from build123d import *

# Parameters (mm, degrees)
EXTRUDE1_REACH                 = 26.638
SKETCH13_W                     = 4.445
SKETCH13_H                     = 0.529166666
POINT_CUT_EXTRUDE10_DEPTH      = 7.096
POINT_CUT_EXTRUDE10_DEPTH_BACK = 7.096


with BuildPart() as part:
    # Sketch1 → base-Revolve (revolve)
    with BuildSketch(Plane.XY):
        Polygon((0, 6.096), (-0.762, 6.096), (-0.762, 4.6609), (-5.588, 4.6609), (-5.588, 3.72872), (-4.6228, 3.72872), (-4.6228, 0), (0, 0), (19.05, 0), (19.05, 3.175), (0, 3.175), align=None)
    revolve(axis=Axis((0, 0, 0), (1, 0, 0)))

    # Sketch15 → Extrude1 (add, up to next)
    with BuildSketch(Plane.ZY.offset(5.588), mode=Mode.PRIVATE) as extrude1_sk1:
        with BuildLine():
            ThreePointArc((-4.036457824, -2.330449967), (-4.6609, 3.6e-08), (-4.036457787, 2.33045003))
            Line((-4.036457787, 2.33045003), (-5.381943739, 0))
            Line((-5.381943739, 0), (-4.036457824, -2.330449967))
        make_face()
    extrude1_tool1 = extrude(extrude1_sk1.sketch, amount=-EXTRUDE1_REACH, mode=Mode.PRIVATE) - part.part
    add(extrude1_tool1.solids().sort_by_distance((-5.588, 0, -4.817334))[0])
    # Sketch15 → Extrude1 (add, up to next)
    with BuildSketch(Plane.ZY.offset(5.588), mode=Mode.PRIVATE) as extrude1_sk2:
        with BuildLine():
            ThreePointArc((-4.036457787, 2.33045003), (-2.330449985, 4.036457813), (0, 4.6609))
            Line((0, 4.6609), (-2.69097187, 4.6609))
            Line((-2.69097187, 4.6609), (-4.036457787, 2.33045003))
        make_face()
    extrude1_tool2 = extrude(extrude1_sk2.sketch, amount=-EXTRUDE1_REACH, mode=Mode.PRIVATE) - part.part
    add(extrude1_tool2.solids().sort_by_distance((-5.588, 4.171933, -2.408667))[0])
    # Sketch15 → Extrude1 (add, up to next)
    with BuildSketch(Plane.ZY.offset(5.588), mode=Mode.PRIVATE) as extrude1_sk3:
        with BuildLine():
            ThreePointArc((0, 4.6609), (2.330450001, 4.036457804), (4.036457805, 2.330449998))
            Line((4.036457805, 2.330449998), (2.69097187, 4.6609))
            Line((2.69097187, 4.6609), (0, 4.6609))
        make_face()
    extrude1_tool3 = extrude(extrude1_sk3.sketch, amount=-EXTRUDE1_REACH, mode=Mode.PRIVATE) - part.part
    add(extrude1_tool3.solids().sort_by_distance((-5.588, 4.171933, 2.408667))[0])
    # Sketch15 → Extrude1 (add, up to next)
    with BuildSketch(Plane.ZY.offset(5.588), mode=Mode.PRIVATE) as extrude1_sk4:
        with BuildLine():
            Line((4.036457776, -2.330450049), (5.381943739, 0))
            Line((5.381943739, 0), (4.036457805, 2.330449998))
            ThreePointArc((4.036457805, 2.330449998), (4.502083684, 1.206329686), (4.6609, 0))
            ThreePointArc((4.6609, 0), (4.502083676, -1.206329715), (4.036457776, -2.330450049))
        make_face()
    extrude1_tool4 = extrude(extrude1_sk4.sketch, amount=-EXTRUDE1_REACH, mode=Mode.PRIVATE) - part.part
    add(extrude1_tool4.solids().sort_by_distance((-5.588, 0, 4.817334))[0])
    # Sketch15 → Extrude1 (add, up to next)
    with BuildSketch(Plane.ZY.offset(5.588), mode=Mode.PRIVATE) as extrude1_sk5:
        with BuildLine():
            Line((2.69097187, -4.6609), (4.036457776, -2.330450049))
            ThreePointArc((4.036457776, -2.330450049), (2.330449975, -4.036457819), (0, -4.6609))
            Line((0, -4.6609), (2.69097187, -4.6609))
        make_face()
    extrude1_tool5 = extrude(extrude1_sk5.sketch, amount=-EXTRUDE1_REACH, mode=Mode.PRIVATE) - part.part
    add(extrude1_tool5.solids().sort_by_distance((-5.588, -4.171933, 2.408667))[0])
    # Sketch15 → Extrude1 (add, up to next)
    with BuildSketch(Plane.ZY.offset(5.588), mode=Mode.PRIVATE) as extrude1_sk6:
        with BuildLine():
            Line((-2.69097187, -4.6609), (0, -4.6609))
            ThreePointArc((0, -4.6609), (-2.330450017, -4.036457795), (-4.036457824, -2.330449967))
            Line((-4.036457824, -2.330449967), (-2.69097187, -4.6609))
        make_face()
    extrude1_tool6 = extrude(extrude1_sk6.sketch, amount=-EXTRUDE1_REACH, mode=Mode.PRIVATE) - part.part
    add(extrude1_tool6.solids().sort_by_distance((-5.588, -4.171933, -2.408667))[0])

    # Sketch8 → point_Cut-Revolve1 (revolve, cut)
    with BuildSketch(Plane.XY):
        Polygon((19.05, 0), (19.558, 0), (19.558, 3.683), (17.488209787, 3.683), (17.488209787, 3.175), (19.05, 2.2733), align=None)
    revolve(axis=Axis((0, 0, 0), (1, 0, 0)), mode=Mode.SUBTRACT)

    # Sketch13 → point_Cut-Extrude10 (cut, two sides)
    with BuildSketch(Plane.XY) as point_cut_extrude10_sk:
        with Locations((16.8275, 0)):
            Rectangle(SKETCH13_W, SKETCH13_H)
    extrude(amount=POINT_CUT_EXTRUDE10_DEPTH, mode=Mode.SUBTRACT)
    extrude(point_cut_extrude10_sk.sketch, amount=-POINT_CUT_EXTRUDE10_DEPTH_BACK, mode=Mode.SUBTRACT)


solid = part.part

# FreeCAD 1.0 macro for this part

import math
import FreeCAD as App
import Part
import Sketcher
from FreeCAD import Vector
Q = App.Units.Quantity

doc = App.newDocument("Part")
body = doc.addObject("PartDesign::Body", "Body")

# Sketch on XY plane
sketch1 = body.newObject("Sketcher::SketchObject", "Sketch")
sketch1.AttachmentSupport = (doc.getObject("XY_Plane"), [""])
sketch1.MapMode = "FlatFace"
sketch1.addGeometry([
    Part.LineSegment(Vector(0, 6.1, 0), Vector(-0.8, 6.1, 0)),  # 0
    Part.LineSegment(Vector(-0.8, 6.1, 0), Vector(-0.8, 4.7, 0)),  # 1
    Part.LineSegment(Vector(-0.8, 4.7, 0), Vector(-5.6, 4.7, 0)),  # 2
    Part.LineSegment(Vector(-5.6, 4.7, 0), Vector(-5.6, 3.7, 0)),  # 3
    Part.LineSegment(Vector(-5.6, 3.7, 0), Vector(-4.6, 3.7, 0)),  # 4
    Part.LineSegment(Vector(-4.6, 3.7, 0), Vector(-4.6, 0, 0)),  # 5
    Part.LineSegment(Vector(-4.6, 0, 0), Vector(19.1, 0, 0)),  # 6
    Part.LineSegment(Vector(19.1, 0, 0), Vector(19.1, 3.2, 0)),  # 7
    Part.LineSegment(Vector(19.1, 3.2, 0), Vector(0, 3.2, 0)),  # 8
    Part.LineSegment(Vector(0, 3.2, 0), Vector(0, 6.1, 0)),  # 9
], False)
sketch1.addConstraint([
    Sketcher.Constraint("Coincident", 0, 2, 1, 1),
    Sketcher.Constraint("Coincident", 1, 2, 2, 1),
    Sketcher.Constraint("Coincident", 2, 2, 3, 1),
    Sketcher.Constraint("Coincident", 3, 2, 4, 1),
    Sketcher.Constraint("Coincident", 4, 2, 5, 1),
    Sketcher.Constraint("Coincident", 5, 2, 6, 1),
    Sketcher.Constraint("Coincident", 6, 2, 7, 1),
    Sketcher.Constraint("Coincident", 7, 2, 8, 1),
    Sketcher.Constraint("Coincident", 8, 2, 9, 1),
    Sketcher.Constraint("Coincident", 9, 2, 0, 1),
    Sketcher.Constraint("Horizontal", 0),
    Sketcher.Constraint("Vertical", 1),
    Sketcher.Constraint("Horizontal", 2),
    Sketcher.Constraint("Vertical", 3),
    Sketcher.Constraint("Horizontal", 4),
    Sketcher.Constraint("Vertical", 5),
    Sketcher.Constraint("Horizontal", 6),
    Sketcher.Constraint("Vertical", 7),
    Sketcher.Constraint("Horizontal", 8),
    Sketcher.Constraint("Vertical", 9),
    Sketcher.Constraint("PointOnObject", 5, 2, -1),
    Sketcher.Constraint("PointOnObject", 8, 2, -2),
    Sketcher.Constraint("DistanceX", 0, 2, 0, 1, Q("0.03 in")),
    Sketcher.Constraint("DistanceX", 2, 2, 2, 1, Q("0.19 in")),
    Sketcher.Constraint("DistanceX", 8, 2, 8, 1, Q("0.75 in")),
    Sketcher.Constraint("DistanceX", 4, 1, 4, 2, Q("0.038 in")),
    Sketcher.Constraint("DistanceY", 7, 1, 7, 2, Q("0.125 in")),
    Sketcher.Constraint("DistanceY", 9, 1, 9, 2, Q("0.115 in")),
    Sketcher.Constraint("DistanceY", 1, 2, 1, 1, Q("0.0565 in")),
    Sketcher.Constraint("DistanceY", 3, 2, 3, 1, Q("0.0367 in")),
])
revolution = body.newObject("PartDesign::Revolution", "Revolution")
revolution.Profile = sketch1
revolution.ReferenceAxis = (sketch1, ["H_Axis"])
revolution.Angle = 360

# Sketch on YZ plane
sketch2 = body.newObject("Sketcher::SketchObject", "Sketch001")
sketch2.AttachmentSupport = (doc.getObject("YZ_Plane"), [""])
sketch2.MapMode = "FlatFace"
sketch2.AttachmentOffset = App.Placement(Vector(0, 0, -0.22 * 25.4), App.Rotation())
sketch2.addGeometry([
    Part.ArcOfCircle(Part.Circle(Vector(0, 0, 0), Vector(0, 0, 1), 4.7), math.radians(-120), math.radians(-60)),
    Part.LineSegment(Vector(2.3, -4, 0), Vector(0, -5.4, 0)),
    Part.LineSegment(Vector(0, -5.4, 0), Vector(-2.3, -4, 0)),
], False)
sketch2.addConstraint([
    Sketcher.Constraint("Tangent", 0, 2, 1, 1),
    Sketcher.Constraint("Coincident", 1, 2, 2, 1),
    Sketcher.Constraint("Tangent", 2, 2, 0, 1),
    Sketcher.Constraint("Coincident", 0, 3, -1, 1),
    Sketcher.Constraint("PointOnObject", 1, 2, -2),
    Sketcher.Constraint("Angle", 1, Q("-150 deg")),
    Sketcher.Constraint("Radius", 0, Q("0.1835 in")),
])
pad1 = body.newObject("PartDesign::Pad", "Pad")
pad1.Profile = sketch2
pad1.Type = "UpToFirst"

# Sketch on YZ plane
sketch3 = body.newObject("Sketcher::SketchObject", "Sketch002")
sketch3.AttachmentSupport = (doc.getObject("YZ_Plane"), [""])
sketch3.MapMode = "FlatFace"
sketch3.AttachmentOffset = App.Placement(Vector(0, 0, -0.22 * 25.4), App.Rotation())
sketch3.addGeometry([
    Part.ArcOfCircle(Part.Circle(Vector(0, 0, 0), Vector(0, 0, 1), 4.7), math.radians(-60), math.radians(0)),
    Part.LineSegment(Vector(4.7, 0, 0), Vector(4.7, -2.7, 0)),
    Part.LineSegment(Vector(4.7, -2.7, 0), Vector(2.3, -4, 0)),
], False)
sketch3.addConstraint([
    Sketcher.Constraint("Tangent", 0, 2, 1, 1),
    Sketcher.Constraint("Coincident", 1, 2, 2, 1),
    Sketcher.Constraint("Tangent", 2, 2, 0, 1),
    Sketcher.Constraint("Vertical", 1),
    Sketcher.Constraint("Coincident", 0, 3, -1, 1),
    Sketcher.Constraint("Angle", 2, Q("-150 deg")),
    Sketcher.Constraint("Radius", 0, Q("0.1835 in")),
])
pad2 = body.newObject("PartDesign::Pad", "Pad001")
pad2.Profile = sketch3
pad2.Type = "UpToFirst"

# Sketch on YZ plane
sketch4 = body.newObject("Sketcher::SketchObject", "Sketch003")
sketch4.AttachmentSupport = (doc.getObject("YZ_Plane"), [""])
sketch4.MapMode = "FlatFace"
sketch4.AttachmentOffset = App.Placement(Vector(0, 0, -0.22 * 25.4), App.Rotation())
sketch4.addGeometry([
    Part.ArcOfCircle(Part.Circle(Vector(0, 0, 0), Vector(0, 0, 1), 4.7), math.radians(0), math.radians(60)),
    Part.LineSegment(Vector(2.3, 4, 0), Vector(4.7, 2.7, 0)),
    Part.LineSegment(Vector(4.7, 2.7, 0), Vector(4.7, 0, 0)),
], False)
sketch4.addConstraint([
    Sketcher.Constraint("Tangent", 0, 2, 1, 1),
    Sketcher.Constraint("Coincident", 1, 2, 2, 1),
    Sketcher.Constraint("Tangent", 2, 2, 0, 1),
    Sketcher.Constraint("Vertical", 2),
    Sketcher.Constraint("Coincident", 0, 3, -1, 1),
    Sketcher.Constraint("Angle", 1, Q("-30 deg")),
    Sketcher.Constraint("Radius", 0, Q("0.1835 in")),
])
pad3 = body.newObject("PartDesign::Pad", "Pad002")
pad3.Profile = sketch4
pad3.Type = "UpToFirst"

# Sketch on YZ plane
sketch5 = body.newObject("Sketcher::SketchObject", "Sketch004")
sketch5.AttachmentSupport = (doc.getObject("YZ_Plane"), [""])
sketch5.MapMode = "FlatFace"
sketch5.AttachmentOffset = App.Placement(Vector(0, 0, -0.22 * 25.4), App.Rotation())
sketch5.addGeometry([
    Part.LineSegment(Vector(-2.3, 4, 0), Vector(0, 5.4, 0)),
    Part.LineSegment(Vector(0, 5.4, 0), Vector(2.3, 4, 0)),
    Part.ArcOfCircle(Part.Circle(Vector(0, 0, 0), Vector(0, 0, 1), 4.7), math.radians(60), math.radians(90)),
    Part.ArcOfCircle(Part.Circle(Vector(0, 0, 0), Vector(0, 0, 1), 4.7), math.radians(90), math.radians(120)),
], False)
sketch5.addConstraint([
    Sketcher.Constraint("Coincident", 0, 2, 1, 1),
    Sketcher.Constraint("Tangent", 1, 2, 2, 1),
    Sketcher.Constraint("Tangent", 2, 2, 3, 1),
    Sketcher.Constraint("Tangent", 3, 2, 0, 1),
    Sketcher.Constraint("Coincident", 2, 3, -1, 1),
    Sketcher.Constraint("Equal", 2, 3),
    Sketcher.Constraint("PointOnObject", 0, 2, -2),
    Sketcher.Constraint("PointOnObject", 2, 2, -2),
    Sketcher.Constraint("Angle", 0, Q("30 deg")),
    Sketcher.Constraint("Radius", 2, Q("0.1835 in")),
])
pad4 = body.newObject("PartDesign::Pad", "Pad003")
pad4.Profile = sketch5
pad4.Type = "UpToFirst"

# Sketch on YZ plane
sketch6 = body.newObject("Sketcher::SketchObject", "Sketch005")
sketch6.AttachmentSupport = (doc.getObject("YZ_Plane"), [""])
sketch6.MapMode = "FlatFace"
sketch6.AttachmentOffset = App.Placement(Vector(0, 0, -0.22 * 25.4), App.Rotation())
sketch6.addGeometry([
    Part.LineSegment(Vector(-4.7, 2.7, 0), Vector(-2.3, 4, 0)),
    Part.ArcOfCircle(Part.Circle(Vector(0, 0, 0), Vector(0, 0, 1), 4.7), math.radians(120), math.radians(180)),
    Part.LineSegment(Vector(-4.7, 0, 0), Vector(-4.7, 2.7, 0)),
], False)
sketch6.addConstraint([
    Sketcher.Constraint("Tangent", 0, 2, 1, 1),
    Sketcher.Constraint("Tangent", 1, 2, 2, 1),
    Sketcher.Constraint("Coincident", 2, 2, 0, 1),
    Sketcher.Constraint("Vertical", 2),
    Sketcher.Constraint("Coincident", 1, 3, -1, 1),
    Sketcher.Constraint("Angle", 0, Q("30 deg")),
    Sketcher.Constraint("Radius", 1, Q("0.1835 in")),
])
pad5 = body.newObject("PartDesign::Pad", "Pad004")
pad5.Profile = sketch6
pad5.Type = "UpToFirst"

# Sketch on YZ plane
sketch7 = body.newObject("Sketcher::SketchObject", "Sketch006")
sketch7.AttachmentSupport = (doc.getObject("YZ_Plane"), [""])
sketch7.MapMode = "FlatFace"
sketch7.AttachmentOffset = App.Placement(Vector(0, 0, -0.22 * 25.4), App.Rotation())
sketch7.addGeometry([
    Part.LineSegment(Vector(-4.7, -2.7, 0), Vector(-4.7, 0, 0)),
    Part.ArcOfCircle(Part.Circle(Vector(0, 0, 0), Vector(0, 0, 1), 4.7), math.radians(180), math.radians(240)),
    Part.LineSegment(Vector(-2.3, -4, 0), Vector(-4.7, -2.7, 0)),
], False)
sketch7.addConstraint([
    Sketcher.Constraint("Tangent", 0, 2, 1, 1),
    Sketcher.Constraint("Tangent", 1, 2, 2, 1),
    Sketcher.Constraint("Coincident", 2, 2, 0, 1),
    Sketcher.Constraint("Vertical", 0),
    Sketcher.Constraint("Coincident", 1, 3, -1, 1),
    Sketcher.Constraint("Angle", 2, Q("150 deg")),
    Sketcher.Constraint("Radius", 1, Q("0.1835 in")),
])
pad6 = body.newObject("PartDesign::Pad", "Pad005")
pad6.Profile = sketch7
pad6.Type = "UpToFirst"

# Sketch on XY plane
sketch8 = body.newObject("Sketcher::SketchObject", "Sketch007")
sketch8.AttachmentSupport = (doc.getObject("XY_Plane"), [""])
sketch8.MapMode = "FlatFace"
sketch8.addGeometry([
    Part.LineSegment(Vector(19.1, 0, 0), Vector(19.6, 0, 0)),  # 0
    Part.LineSegment(Vector(19.6, 0, 0), Vector(19.6, 3.7, 0)),  # 1
    Part.LineSegment(Vector(19.6, 3.7, 0), Vector(17.5, 3.7, 0)),  # 2
    Part.LineSegment(Vector(17.5, 3.7, 0), Vector(17.5, 3.2, 0)),  # 3
    Part.LineSegment(Vector(17.5, 3.2, 0), Vector(19.1, 2.3, 0)),  # 4
    Part.LineSegment(Vector(19.1, 2.3, 0), Vector(19.1, 0, 0)),  # 5
], False)
sketch8.addConstraint([
    Sketcher.Constraint("Coincident", 0, 2, 1, 1),
    Sketcher.Constraint("Coincident", 1, 2, 2, 1),
    Sketcher.Constraint("Coincident", 2, 2, 3, 1),
    Sketcher.Constraint("Coincident", 3, 2, 4, 1),
    Sketcher.Constraint("Coincident", 4, 2, 5, 1),
    Sketcher.Constraint("Coincident", 5, 2, 0, 1),
    Sketcher.Constraint("Horizontal", 0),
    Sketcher.Constraint("Vertical", 1),
    Sketcher.Constraint("Horizontal", 2),
    Sketcher.Constraint("Vertical", 3),
    Sketcher.Constraint("Vertical", 5),
    Sketcher.Constraint("PointOnObject", 0, 2, -1),
    Sketcher.Constraint("Equal", 0, 3),
    Sketcher.Constraint("Angle", 4, Q("-30 deg")),
    Sketcher.Constraint("DistanceX", 0, 1, 0, 2, Q("0.02 in")),
    Sketcher.Constraint("DistanceY", 1, 1, 1, 2, Q("0.145 in")),
    Sketcher.Constraint("DistanceX", -1, 1, 0, 2, Q("0.77 in")),
    Sketcher.Constraint("Distance", 4, Q("0.071 in")),
])
groove = body.newObject("PartDesign::Groove", "Groove")
groove.Profile = sketch8
groove.ReferenceAxis = (sketch8, ["H_Axis"])
groove.Angle = 360

# Sketch on XY plane
sketch9 = body.newObject("Sketcher::SketchObject", "Sketch008")
sketch9.AttachmentSupport = (doc.getObject("XY_Plane"), [""])
sketch9.MapMode = "FlatFace"
sketch9.addGeometry([
    Part.LineSegment(Vector(14.6, 0.3, 0), Vector(14.6, -0.3, 0)),
    Part.LineSegment(Vector(14.6, -0.3, 0), Vector(19.1, -0.3, 0)),
    Part.LineSegment(Vector(19.1, -0.3, 0), Vector(19.1, 0.3, 0)),
    Part.LineSegment(Vector(19.1, 0.3, 0), Vector(14.6, 0.3, 0)),
], False)
sketch9.addConstraint([
    Sketcher.Constraint("Coincident", 0, 2, 1, 1),
    Sketcher.Constraint("Coincident", 1, 2, 2, 1),
    Sketcher.Constraint("Coincident", 2, 2, 3, 1),
    Sketcher.Constraint("Coincident", 3, 2, 0, 1),
    Sketcher.Constraint("Vertical", 0),
    Sketcher.Constraint("Horizontal", 1),
    Sketcher.Constraint("Vertical", 2),
    Sketcher.Constraint("Horizontal", 3),
    Sketcher.Constraint("DistanceX", 1, 1, 1, 2, Q("0.175 in")),
    Sketcher.Constraint("DistanceX", -1, 1, 1, 2, Q("0.75 in")),
    Sketcher.Constraint("DistanceY", 0, 2, 0, 1, 0.529167),
    Sketcher.Constraint("DistanceY", 0, 2, -1, 1, 0.264583),
])
pocket1 = body.newObject("PartDesign::Pocket", "Pocket")
pocket1.Profile = sketch9
pocket1.Type = "ThroughAll"
pocket1.Midplane = True

doc.recompute()
